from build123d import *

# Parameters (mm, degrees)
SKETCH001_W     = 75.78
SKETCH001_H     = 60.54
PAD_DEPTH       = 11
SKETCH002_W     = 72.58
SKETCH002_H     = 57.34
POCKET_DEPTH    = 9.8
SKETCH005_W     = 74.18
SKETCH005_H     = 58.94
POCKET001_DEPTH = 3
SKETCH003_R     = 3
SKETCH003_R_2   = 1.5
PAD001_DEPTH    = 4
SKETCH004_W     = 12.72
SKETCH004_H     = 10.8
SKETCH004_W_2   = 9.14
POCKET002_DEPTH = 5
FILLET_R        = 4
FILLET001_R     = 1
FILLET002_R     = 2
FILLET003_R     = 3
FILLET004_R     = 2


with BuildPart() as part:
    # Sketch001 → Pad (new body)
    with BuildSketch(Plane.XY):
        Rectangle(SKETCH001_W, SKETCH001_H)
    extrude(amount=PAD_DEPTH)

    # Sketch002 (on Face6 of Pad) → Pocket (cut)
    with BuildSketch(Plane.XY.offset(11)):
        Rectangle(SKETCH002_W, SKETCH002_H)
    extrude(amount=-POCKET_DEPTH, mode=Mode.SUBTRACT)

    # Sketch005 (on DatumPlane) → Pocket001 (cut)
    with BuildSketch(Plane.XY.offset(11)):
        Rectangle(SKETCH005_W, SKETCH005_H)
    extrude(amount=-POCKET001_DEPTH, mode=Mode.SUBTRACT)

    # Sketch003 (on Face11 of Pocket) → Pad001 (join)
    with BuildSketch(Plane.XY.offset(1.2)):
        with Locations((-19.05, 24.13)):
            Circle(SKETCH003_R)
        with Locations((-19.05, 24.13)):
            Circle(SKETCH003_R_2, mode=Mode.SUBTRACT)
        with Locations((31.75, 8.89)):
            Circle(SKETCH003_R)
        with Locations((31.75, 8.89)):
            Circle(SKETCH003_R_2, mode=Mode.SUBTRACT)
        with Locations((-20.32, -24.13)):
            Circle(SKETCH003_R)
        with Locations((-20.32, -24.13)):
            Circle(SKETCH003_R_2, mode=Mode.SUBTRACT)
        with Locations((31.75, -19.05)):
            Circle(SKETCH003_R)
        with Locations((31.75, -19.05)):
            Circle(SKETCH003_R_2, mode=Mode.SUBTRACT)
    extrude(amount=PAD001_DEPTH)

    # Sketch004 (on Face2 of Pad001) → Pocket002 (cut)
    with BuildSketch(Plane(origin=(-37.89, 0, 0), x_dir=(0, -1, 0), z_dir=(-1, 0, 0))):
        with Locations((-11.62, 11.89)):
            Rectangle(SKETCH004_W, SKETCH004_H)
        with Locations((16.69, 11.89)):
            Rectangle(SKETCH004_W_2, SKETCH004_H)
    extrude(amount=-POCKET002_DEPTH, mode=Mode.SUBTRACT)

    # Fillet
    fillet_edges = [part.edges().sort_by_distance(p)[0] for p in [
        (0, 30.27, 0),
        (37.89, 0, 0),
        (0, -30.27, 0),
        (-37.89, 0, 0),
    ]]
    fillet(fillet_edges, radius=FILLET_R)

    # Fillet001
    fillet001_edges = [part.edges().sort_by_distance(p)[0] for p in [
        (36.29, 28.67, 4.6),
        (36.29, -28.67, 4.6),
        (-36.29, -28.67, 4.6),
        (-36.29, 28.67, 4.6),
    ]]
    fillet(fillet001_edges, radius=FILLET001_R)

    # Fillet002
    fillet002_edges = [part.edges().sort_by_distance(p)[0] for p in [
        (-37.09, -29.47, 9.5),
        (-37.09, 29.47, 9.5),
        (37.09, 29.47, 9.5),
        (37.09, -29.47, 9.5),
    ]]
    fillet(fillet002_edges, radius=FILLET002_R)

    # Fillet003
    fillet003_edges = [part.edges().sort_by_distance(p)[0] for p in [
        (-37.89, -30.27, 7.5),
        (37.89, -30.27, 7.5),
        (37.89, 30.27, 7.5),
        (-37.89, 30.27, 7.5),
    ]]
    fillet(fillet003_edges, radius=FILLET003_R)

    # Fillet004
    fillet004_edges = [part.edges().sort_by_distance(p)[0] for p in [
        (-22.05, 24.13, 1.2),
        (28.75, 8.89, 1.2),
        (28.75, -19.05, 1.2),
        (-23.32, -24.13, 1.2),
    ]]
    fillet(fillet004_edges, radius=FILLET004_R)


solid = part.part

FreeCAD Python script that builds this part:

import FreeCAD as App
import Part
import Sketcher
from FreeCAD import Vector
Q = App.Units.Quantity


def edges_at(feature, points):
    """Names of the edges that pass closest to the given points."""
    edges = feature.Shape.Edges
    near = lambda p: min(range(len(edges)), key=lambda i: edges[i].distToShape(Part.Vertex(*p))[0])
    return sorted({f"Edge{near(p) + 1}" for p in points})


def add_polygon(sketch, points):
    """Adds a closed chain of lines whose ends are joined by coincident constraints."""
    first, n = sketch.GeometryCount, len(points)
    for a, b in zip(points, points[1:] + points[:1]):
        sketch.addGeometry(Part.LineSegment(App.Vector(*a, 0), App.Vector(*b, 0)), False)
    for i in range(n):
        sketch.addConstraint(Sketcher.Constraint("Coincident", first + i, 2, first + (i + 1) % n, 1))

doc = App.newDocument("Part")
body = doc.addObject("PartDesign::Body", "Body")

# Sketch on XY plane
sketch1 = doc.addObject("Sketcher::SketchObject", "Sketch")
body.addObject(sketch1)
sketch1.AttachmentSupport = (doc.XY_Plane, [""])
sketch1.MapMode = "FlatFace"
add_polygon(sketch1, [(-38, 30), (-38, -30), (38, -30), (38, 30)])  # lines 0-3
sketch1.addConstraint(Sketcher.Constraint("Vertical", 0))
sketch1.addConstraint(Sketcher.Constraint("Horizontal", 1))
sketch1.addConstraint(Sketcher.Constraint("Vertical", 2))
sketch1.addConstraint(Sketcher.Constraint("Horizontal", 3))
sketch1.addConstraint(Sketcher.Constraint("Symmetric", 0, 2, 2, 2, -1, 1))
sketch1.addConstraint(Sketcher.Constraint("DistanceX", 1, 1, 1, 2, Q("75.78 mm")))
sketch1.addConstraint(Sketcher.Constraint("DistanceY", 0, 2, 0, 1, Q("60.54 mm")))
pad1 = doc.addObject("PartDesign::Pad", "Pad")
body.addObject(pad1)
pad1.Profile = sketch1
pad1.Length = 11

# Sketch on XY plane
sketch2 = doc.addObject("Sketcher::SketchObject", "Sketch001")
body.addObject(sketch2)
sketch2.AttachmentSupport = (doc.XY_Plane, [""])
sketch2.MapMode = "FlatFace"
sketch2.AttachmentOffset = App.Placement(Vector(0, 0, 11), App.Rotation())
add_polygon(sketch2, [(-36, 29), (-36, -29), (36, -29), (36, 29)])  # lines 0-3
sketch2.addConstraint(Sketcher.Constraint("Vertical", 0))
sketch2.addConstraint(Sketcher.Constraint("Horizontal", 1))
sketch2.addConstraint(Sketcher.Constraint("Vertical", 2))
sketch2.addConstraint(Sketcher.Constraint("Horizontal", 3))
sketch2.addConstraint(Sketcher.Constraint("Symmetric", 0, 2, 2, 2, -1, 1))
sketch2.addConstraint(Sketcher.Constraint("DistanceX", 1, 1, 1, 2, Q("72.58 mm")))
sketch2.addConstraint(Sketcher.Constraint("DistanceY", 0, 2, 0, 1, Q("57.34 mm")))
pocket1 = doc.addObject("PartDesign::Pocket", "Pocket")
body.addObject(pocket1)
pocket1.Profile = sketch2
pocket1.Length = 9.8

# Sketch on XY plane
sketch3 = doc.addObject("Sketcher::SketchObject", "Sketch002")
body.addObject(sketch3)
sketch3.AttachmentSupport = (doc.XY_Plane, [""])
sketch3.MapMode = "FlatFace"
sketch3.AttachmentOffset = App.Placement(Vector(0, 0, 11), App.Rotation())
add_polygon(sketch3, [(-37, 29), (-37, -29), (37, -29), (37, 29)])  # lines 0-3
sketch3.addConstraint(Sketcher.Constraint("Vertical", 0))
sketch3.addConstraint(Sketcher.Constraint("Horizontal", 1))
sketch3.addConstraint(Sketcher.Constraint("Vertical", 2))
sketch3.addConstraint(Sketcher.Constraint("Horizontal", 3))
sketch3.addConstraint(Sketcher.Constraint("Symmetric", 0, 2, 2, 2, -1, 1))
sketch3.addConstraint(Sketcher.Constraint("DistanceX", 1, 1, 1, 2, Q("74.18 mm")))
sketch3.addConstraint(Sketcher.Constraint("DistanceY", 0, 2, 0, 1, Q("58.94 mm")))
pocket2 = doc.addObject("PartDesign::Pocket", "Pocket001")
body.addObject(pocket2)
pocket2.Profile = sketch3
pocket2.Length = 3

# Sketch on XY plane
sketch4 = doc.addObject("Sketcher::SketchObject", "Sketch003")
body.addObject(sketch4)
sketch4.AttachmentSupport = (doc.XY_Plane, [""])
sketch4.MapMode = "FlatFace"
sketch4.AttachmentOffset = App.Placement(Vector(0, 0, 1.2), App.Rotation())
sketch4.addGeometry(Part.Circle(Vector(-19.1, 24.1, 0), Vector(0, 0, 1), 3), False)
sketch4.addGeometry(Part.Circle(Vector(-19.1, 24.1, 0), Vector(0, 0, 1), 1.5), False)
sketch4.addGeometry(Part.Circle(Vector(31.8, 8.9, 0), Vector(0, 0, 1), 3), False)
sketch4.addGeometry(Part.Circle(Vector(31.8, 8.9, 0), Vector(0, 0, 1), 1.5), False)
sketch4.addGeometry(Part.Circle(Vector(-20.3, -24.1, 0), Vector(0, 0, 1), 3), False)
sketch4.addGeometry(Part.Circle(Vector(-20.3, -24.1, 0), Vector(0, 0, 1), 1.5), False)
sketch4.addGeometry(Part.Circle(Vector(31.8, -19.1, 0), Vector(0, 0, 1), 3), False)
sketch4.addGeometry(Part.Circle(Vector(31.8, -19.1, 0), Vector(0, 0, 1), 1.5), False)
sketch4.addConstraint(Sketcher.Constraint("Coincident", 1, 3, 0, 3))
sketch4.addConstraint(Sketcher.Constraint("Coincident", 3, 3, 2, 3))
sketch4.addConstraint(Sketcher.Constraint("Coincident", 5, 3, 4, 3))
sketch4.addConstraint(Sketcher.Constraint("Coincident", 7, 3, 6, 3))
sketch4.addConstraint(Sketcher.Constraint("Equal", 0, 2))
sketch4.addConstraint(Sketcher.Constraint("Equal", 1, 3))
sketch4.addConstraint(Sketcher.Constraint("Equal", 2, 4))
sketch4.addConstraint(Sketcher.Constraint("Equal", 3, 5))
sketch4.addConstraint(Sketcher.Constraint("Equal", 4, 6))
sketch4.addConstraint(Sketcher.Constraint("Equal", 5, 7))
sketch4.addConstraint(Sketcher.Constraint("Vertical", 3, 3, 6, 3))
sketch4.addConstraint(Sketcher.Constraint("Diameter", 0, Q("6 mm")))
sketch4.addConstraint(Sketcher.Constraint("Diameter", 1, Q("3 mm")))
sketch4.addConstraint(Sketcher.Constraint("DistanceX", 0, 3, 2, 3, Q("50.8 mm")))
sketch4.addConstraint(Sketcher.Constraint("DistanceX", 0, 3, -1, 1, Q("19.05 mm")))
sketch4.addConstraint(Sketcher.Constraint("DistanceY", -1, 1, 0, 3, Q("24.13 mm")))
sketch4.addConstraint(Sketcher.Constraint("DistanceY", -1, 1, 2, 3, Q("8.89 mm")))
sketch4.addConstraint(Sketcher.Constraint("DistanceX", 4, 3, -1, 1, Q("20.32 mm")))
sketch4.addConstraint(Sketcher.Constraint("DistanceY", 4, 3, -1, 1, Q("24.13 mm")))
sketch4.addConstraint(Sketcher.Constraint("DistanceY", 6, 3, -1, 1, Q("19.05 mm")))
pad2 = doc.addObject("PartDesign::Pad", "Pad001")
body.addObject(pad2)
pad2.Profile = sketch4
pad2.Length = 4

# Sketch on YZ plane
sketch5 = doc.addObject("Sketcher::SketchObject", "Sketch004")
body.addObject(sketch5)
sketch5.AttachmentSupport = (doc.YZ_Plane, [""])
sketch5.MapMode = "FlatFace"
sketch5.AttachmentOffset = App.Placement(Vector(0, 0, -37.89), App.Rotation())
add_polygon(sketch5, [(18, 17), (18, 6), (5, 6), (5, 17)])  # lines 0-3
add_polygon(sketch5, [(-12, 17), (-12, 6), (-21, 6), (-21, 17)])  # lines 4-7
sketch5.addConstraint(Sketcher.Constraint("Vertical", 0))
sketch5.addConstraint(Sketcher.Constraint("Horizontal", 1))
sketch5.addConstraint(Sketcher.Constraint("Vertical", 2))
sketch5.addConstraint(Sketcher.Constraint("Horizontal", 3))
sketch5.addConstraint(Sketcher.Constraint("Vertical", 4))
sketch5.addConstraint(Sketcher.Constraint("Horizontal", 5))
sketch5.addConstraint(Sketcher.Constraint("Vertical", 6))
sketch5.addConstraint(Sketcher.Constraint("Horizontal", 7))
sketch5.addConstraint(Sketcher.Constraint("Horizontal", 1, 2, 4, 2))
sketch5.addConstraint(Sketcher.Constraint("Horizontal", 3, 2, 6, 2))
sketch5.addConstraint(Sketcher.Constraint("DistanceY", 0, 2, 0, 1, Q("10.8 mm")))
sketch5.addConstraint(Sketcher.Constraint("DistanceX", 1, 2, 1, 1, Q("12.72 mm")))
sketch5.addConstraint(Sketcher.Constraint("DistanceX", 5, 2, 5, 1, Q("9.14 mm")))
sketch5.addConstraint(Sketcher.Constraint("DistanceX", 4, 2, 0, 2, Q("30.1 mm")))
sketch5.addConstraint(Sketcher.Constraint("DistanceX", -1, 1, 0, 2, Q("17.98 mm")))
sketch5.addConstraint(Sketcher.Constraint("DistanceY", -1, 1, 0, 2, Q("6.49 mm")))
pocket3 = doc.addObject("PartDesign::Pocket", "Pocket002")
body.addObject(pocket3)
pocket3.Profile = sketch5
pocket3.Length = 5
pocket3.Reversed = True
doc.recompute()

fillet = doc.addObject("PartDesign::Fillet", "Fillet")
body.addObject(fillet)
fillet.Base = (pocket3, edges_at(pocket3, [
    (0, 30.27, 0),
    (37.89, 0, 0),
    (0, -30.27, 0),
    (-37.89, 0, 0),
]))
fillet.Radius = 4
doc.recompute()

fillet2 = doc.addObject("PartDesign::Fillet", "Fillet001")
body.addObject(fillet2)
fillet2.Base = (fillet, edges_at(fillet, [
    (36.29, 28.67, 4.6),
    (36.29, -28.67, 4.6),
    (-36.29, -28.67, 4.6),
    (-36.29, 28.67, 4.6),
]))
fillet2.Radius = 1
doc.recompute()

fillet3 = doc.addObject("PartDesign::Fillet", "Fillet002")
body.addObject(fillet3)
fillet3.Base = (fillet2, edges_at(fillet2, [
    (-37.09, -29.47, 9.5),
    (-37.09, 29.47, 9.5),
    (37.09, 29.47, 9.5),
    (37.09, -29.47, 9.5),
]))
fillet3.Radius = 2
doc.recompute()

fillet4 = doc.addObject("PartDesign::Fillet", "Fillet003")
body.addObject(fillet4)
fillet4.Base = (fillet3, edges_at(fillet3, [
    (-37.89, -30.27, 7.5),
    (37.89, -30.27, 7.5),
    (37.89, 30.27, 7.5),
    (-37.89, 30.27, 7.5),
]))
fillet4.Radius = 3
doc.recompute()

fillet5 = doc.addObject("PartDesign::Fillet", "Fillet004")
body.addObject(fillet5)
fillet5.Base = (fillet4, edges_at(fillet4, [
    (-22.05, 24.13, 1.2),
    (28.75, 8.89, 1.2),
    (28.75, -19.05, 1.2),
    (-23.32, -24.13, 1.2),
]))
fillet5.Radius = 2

doc.recompute()
